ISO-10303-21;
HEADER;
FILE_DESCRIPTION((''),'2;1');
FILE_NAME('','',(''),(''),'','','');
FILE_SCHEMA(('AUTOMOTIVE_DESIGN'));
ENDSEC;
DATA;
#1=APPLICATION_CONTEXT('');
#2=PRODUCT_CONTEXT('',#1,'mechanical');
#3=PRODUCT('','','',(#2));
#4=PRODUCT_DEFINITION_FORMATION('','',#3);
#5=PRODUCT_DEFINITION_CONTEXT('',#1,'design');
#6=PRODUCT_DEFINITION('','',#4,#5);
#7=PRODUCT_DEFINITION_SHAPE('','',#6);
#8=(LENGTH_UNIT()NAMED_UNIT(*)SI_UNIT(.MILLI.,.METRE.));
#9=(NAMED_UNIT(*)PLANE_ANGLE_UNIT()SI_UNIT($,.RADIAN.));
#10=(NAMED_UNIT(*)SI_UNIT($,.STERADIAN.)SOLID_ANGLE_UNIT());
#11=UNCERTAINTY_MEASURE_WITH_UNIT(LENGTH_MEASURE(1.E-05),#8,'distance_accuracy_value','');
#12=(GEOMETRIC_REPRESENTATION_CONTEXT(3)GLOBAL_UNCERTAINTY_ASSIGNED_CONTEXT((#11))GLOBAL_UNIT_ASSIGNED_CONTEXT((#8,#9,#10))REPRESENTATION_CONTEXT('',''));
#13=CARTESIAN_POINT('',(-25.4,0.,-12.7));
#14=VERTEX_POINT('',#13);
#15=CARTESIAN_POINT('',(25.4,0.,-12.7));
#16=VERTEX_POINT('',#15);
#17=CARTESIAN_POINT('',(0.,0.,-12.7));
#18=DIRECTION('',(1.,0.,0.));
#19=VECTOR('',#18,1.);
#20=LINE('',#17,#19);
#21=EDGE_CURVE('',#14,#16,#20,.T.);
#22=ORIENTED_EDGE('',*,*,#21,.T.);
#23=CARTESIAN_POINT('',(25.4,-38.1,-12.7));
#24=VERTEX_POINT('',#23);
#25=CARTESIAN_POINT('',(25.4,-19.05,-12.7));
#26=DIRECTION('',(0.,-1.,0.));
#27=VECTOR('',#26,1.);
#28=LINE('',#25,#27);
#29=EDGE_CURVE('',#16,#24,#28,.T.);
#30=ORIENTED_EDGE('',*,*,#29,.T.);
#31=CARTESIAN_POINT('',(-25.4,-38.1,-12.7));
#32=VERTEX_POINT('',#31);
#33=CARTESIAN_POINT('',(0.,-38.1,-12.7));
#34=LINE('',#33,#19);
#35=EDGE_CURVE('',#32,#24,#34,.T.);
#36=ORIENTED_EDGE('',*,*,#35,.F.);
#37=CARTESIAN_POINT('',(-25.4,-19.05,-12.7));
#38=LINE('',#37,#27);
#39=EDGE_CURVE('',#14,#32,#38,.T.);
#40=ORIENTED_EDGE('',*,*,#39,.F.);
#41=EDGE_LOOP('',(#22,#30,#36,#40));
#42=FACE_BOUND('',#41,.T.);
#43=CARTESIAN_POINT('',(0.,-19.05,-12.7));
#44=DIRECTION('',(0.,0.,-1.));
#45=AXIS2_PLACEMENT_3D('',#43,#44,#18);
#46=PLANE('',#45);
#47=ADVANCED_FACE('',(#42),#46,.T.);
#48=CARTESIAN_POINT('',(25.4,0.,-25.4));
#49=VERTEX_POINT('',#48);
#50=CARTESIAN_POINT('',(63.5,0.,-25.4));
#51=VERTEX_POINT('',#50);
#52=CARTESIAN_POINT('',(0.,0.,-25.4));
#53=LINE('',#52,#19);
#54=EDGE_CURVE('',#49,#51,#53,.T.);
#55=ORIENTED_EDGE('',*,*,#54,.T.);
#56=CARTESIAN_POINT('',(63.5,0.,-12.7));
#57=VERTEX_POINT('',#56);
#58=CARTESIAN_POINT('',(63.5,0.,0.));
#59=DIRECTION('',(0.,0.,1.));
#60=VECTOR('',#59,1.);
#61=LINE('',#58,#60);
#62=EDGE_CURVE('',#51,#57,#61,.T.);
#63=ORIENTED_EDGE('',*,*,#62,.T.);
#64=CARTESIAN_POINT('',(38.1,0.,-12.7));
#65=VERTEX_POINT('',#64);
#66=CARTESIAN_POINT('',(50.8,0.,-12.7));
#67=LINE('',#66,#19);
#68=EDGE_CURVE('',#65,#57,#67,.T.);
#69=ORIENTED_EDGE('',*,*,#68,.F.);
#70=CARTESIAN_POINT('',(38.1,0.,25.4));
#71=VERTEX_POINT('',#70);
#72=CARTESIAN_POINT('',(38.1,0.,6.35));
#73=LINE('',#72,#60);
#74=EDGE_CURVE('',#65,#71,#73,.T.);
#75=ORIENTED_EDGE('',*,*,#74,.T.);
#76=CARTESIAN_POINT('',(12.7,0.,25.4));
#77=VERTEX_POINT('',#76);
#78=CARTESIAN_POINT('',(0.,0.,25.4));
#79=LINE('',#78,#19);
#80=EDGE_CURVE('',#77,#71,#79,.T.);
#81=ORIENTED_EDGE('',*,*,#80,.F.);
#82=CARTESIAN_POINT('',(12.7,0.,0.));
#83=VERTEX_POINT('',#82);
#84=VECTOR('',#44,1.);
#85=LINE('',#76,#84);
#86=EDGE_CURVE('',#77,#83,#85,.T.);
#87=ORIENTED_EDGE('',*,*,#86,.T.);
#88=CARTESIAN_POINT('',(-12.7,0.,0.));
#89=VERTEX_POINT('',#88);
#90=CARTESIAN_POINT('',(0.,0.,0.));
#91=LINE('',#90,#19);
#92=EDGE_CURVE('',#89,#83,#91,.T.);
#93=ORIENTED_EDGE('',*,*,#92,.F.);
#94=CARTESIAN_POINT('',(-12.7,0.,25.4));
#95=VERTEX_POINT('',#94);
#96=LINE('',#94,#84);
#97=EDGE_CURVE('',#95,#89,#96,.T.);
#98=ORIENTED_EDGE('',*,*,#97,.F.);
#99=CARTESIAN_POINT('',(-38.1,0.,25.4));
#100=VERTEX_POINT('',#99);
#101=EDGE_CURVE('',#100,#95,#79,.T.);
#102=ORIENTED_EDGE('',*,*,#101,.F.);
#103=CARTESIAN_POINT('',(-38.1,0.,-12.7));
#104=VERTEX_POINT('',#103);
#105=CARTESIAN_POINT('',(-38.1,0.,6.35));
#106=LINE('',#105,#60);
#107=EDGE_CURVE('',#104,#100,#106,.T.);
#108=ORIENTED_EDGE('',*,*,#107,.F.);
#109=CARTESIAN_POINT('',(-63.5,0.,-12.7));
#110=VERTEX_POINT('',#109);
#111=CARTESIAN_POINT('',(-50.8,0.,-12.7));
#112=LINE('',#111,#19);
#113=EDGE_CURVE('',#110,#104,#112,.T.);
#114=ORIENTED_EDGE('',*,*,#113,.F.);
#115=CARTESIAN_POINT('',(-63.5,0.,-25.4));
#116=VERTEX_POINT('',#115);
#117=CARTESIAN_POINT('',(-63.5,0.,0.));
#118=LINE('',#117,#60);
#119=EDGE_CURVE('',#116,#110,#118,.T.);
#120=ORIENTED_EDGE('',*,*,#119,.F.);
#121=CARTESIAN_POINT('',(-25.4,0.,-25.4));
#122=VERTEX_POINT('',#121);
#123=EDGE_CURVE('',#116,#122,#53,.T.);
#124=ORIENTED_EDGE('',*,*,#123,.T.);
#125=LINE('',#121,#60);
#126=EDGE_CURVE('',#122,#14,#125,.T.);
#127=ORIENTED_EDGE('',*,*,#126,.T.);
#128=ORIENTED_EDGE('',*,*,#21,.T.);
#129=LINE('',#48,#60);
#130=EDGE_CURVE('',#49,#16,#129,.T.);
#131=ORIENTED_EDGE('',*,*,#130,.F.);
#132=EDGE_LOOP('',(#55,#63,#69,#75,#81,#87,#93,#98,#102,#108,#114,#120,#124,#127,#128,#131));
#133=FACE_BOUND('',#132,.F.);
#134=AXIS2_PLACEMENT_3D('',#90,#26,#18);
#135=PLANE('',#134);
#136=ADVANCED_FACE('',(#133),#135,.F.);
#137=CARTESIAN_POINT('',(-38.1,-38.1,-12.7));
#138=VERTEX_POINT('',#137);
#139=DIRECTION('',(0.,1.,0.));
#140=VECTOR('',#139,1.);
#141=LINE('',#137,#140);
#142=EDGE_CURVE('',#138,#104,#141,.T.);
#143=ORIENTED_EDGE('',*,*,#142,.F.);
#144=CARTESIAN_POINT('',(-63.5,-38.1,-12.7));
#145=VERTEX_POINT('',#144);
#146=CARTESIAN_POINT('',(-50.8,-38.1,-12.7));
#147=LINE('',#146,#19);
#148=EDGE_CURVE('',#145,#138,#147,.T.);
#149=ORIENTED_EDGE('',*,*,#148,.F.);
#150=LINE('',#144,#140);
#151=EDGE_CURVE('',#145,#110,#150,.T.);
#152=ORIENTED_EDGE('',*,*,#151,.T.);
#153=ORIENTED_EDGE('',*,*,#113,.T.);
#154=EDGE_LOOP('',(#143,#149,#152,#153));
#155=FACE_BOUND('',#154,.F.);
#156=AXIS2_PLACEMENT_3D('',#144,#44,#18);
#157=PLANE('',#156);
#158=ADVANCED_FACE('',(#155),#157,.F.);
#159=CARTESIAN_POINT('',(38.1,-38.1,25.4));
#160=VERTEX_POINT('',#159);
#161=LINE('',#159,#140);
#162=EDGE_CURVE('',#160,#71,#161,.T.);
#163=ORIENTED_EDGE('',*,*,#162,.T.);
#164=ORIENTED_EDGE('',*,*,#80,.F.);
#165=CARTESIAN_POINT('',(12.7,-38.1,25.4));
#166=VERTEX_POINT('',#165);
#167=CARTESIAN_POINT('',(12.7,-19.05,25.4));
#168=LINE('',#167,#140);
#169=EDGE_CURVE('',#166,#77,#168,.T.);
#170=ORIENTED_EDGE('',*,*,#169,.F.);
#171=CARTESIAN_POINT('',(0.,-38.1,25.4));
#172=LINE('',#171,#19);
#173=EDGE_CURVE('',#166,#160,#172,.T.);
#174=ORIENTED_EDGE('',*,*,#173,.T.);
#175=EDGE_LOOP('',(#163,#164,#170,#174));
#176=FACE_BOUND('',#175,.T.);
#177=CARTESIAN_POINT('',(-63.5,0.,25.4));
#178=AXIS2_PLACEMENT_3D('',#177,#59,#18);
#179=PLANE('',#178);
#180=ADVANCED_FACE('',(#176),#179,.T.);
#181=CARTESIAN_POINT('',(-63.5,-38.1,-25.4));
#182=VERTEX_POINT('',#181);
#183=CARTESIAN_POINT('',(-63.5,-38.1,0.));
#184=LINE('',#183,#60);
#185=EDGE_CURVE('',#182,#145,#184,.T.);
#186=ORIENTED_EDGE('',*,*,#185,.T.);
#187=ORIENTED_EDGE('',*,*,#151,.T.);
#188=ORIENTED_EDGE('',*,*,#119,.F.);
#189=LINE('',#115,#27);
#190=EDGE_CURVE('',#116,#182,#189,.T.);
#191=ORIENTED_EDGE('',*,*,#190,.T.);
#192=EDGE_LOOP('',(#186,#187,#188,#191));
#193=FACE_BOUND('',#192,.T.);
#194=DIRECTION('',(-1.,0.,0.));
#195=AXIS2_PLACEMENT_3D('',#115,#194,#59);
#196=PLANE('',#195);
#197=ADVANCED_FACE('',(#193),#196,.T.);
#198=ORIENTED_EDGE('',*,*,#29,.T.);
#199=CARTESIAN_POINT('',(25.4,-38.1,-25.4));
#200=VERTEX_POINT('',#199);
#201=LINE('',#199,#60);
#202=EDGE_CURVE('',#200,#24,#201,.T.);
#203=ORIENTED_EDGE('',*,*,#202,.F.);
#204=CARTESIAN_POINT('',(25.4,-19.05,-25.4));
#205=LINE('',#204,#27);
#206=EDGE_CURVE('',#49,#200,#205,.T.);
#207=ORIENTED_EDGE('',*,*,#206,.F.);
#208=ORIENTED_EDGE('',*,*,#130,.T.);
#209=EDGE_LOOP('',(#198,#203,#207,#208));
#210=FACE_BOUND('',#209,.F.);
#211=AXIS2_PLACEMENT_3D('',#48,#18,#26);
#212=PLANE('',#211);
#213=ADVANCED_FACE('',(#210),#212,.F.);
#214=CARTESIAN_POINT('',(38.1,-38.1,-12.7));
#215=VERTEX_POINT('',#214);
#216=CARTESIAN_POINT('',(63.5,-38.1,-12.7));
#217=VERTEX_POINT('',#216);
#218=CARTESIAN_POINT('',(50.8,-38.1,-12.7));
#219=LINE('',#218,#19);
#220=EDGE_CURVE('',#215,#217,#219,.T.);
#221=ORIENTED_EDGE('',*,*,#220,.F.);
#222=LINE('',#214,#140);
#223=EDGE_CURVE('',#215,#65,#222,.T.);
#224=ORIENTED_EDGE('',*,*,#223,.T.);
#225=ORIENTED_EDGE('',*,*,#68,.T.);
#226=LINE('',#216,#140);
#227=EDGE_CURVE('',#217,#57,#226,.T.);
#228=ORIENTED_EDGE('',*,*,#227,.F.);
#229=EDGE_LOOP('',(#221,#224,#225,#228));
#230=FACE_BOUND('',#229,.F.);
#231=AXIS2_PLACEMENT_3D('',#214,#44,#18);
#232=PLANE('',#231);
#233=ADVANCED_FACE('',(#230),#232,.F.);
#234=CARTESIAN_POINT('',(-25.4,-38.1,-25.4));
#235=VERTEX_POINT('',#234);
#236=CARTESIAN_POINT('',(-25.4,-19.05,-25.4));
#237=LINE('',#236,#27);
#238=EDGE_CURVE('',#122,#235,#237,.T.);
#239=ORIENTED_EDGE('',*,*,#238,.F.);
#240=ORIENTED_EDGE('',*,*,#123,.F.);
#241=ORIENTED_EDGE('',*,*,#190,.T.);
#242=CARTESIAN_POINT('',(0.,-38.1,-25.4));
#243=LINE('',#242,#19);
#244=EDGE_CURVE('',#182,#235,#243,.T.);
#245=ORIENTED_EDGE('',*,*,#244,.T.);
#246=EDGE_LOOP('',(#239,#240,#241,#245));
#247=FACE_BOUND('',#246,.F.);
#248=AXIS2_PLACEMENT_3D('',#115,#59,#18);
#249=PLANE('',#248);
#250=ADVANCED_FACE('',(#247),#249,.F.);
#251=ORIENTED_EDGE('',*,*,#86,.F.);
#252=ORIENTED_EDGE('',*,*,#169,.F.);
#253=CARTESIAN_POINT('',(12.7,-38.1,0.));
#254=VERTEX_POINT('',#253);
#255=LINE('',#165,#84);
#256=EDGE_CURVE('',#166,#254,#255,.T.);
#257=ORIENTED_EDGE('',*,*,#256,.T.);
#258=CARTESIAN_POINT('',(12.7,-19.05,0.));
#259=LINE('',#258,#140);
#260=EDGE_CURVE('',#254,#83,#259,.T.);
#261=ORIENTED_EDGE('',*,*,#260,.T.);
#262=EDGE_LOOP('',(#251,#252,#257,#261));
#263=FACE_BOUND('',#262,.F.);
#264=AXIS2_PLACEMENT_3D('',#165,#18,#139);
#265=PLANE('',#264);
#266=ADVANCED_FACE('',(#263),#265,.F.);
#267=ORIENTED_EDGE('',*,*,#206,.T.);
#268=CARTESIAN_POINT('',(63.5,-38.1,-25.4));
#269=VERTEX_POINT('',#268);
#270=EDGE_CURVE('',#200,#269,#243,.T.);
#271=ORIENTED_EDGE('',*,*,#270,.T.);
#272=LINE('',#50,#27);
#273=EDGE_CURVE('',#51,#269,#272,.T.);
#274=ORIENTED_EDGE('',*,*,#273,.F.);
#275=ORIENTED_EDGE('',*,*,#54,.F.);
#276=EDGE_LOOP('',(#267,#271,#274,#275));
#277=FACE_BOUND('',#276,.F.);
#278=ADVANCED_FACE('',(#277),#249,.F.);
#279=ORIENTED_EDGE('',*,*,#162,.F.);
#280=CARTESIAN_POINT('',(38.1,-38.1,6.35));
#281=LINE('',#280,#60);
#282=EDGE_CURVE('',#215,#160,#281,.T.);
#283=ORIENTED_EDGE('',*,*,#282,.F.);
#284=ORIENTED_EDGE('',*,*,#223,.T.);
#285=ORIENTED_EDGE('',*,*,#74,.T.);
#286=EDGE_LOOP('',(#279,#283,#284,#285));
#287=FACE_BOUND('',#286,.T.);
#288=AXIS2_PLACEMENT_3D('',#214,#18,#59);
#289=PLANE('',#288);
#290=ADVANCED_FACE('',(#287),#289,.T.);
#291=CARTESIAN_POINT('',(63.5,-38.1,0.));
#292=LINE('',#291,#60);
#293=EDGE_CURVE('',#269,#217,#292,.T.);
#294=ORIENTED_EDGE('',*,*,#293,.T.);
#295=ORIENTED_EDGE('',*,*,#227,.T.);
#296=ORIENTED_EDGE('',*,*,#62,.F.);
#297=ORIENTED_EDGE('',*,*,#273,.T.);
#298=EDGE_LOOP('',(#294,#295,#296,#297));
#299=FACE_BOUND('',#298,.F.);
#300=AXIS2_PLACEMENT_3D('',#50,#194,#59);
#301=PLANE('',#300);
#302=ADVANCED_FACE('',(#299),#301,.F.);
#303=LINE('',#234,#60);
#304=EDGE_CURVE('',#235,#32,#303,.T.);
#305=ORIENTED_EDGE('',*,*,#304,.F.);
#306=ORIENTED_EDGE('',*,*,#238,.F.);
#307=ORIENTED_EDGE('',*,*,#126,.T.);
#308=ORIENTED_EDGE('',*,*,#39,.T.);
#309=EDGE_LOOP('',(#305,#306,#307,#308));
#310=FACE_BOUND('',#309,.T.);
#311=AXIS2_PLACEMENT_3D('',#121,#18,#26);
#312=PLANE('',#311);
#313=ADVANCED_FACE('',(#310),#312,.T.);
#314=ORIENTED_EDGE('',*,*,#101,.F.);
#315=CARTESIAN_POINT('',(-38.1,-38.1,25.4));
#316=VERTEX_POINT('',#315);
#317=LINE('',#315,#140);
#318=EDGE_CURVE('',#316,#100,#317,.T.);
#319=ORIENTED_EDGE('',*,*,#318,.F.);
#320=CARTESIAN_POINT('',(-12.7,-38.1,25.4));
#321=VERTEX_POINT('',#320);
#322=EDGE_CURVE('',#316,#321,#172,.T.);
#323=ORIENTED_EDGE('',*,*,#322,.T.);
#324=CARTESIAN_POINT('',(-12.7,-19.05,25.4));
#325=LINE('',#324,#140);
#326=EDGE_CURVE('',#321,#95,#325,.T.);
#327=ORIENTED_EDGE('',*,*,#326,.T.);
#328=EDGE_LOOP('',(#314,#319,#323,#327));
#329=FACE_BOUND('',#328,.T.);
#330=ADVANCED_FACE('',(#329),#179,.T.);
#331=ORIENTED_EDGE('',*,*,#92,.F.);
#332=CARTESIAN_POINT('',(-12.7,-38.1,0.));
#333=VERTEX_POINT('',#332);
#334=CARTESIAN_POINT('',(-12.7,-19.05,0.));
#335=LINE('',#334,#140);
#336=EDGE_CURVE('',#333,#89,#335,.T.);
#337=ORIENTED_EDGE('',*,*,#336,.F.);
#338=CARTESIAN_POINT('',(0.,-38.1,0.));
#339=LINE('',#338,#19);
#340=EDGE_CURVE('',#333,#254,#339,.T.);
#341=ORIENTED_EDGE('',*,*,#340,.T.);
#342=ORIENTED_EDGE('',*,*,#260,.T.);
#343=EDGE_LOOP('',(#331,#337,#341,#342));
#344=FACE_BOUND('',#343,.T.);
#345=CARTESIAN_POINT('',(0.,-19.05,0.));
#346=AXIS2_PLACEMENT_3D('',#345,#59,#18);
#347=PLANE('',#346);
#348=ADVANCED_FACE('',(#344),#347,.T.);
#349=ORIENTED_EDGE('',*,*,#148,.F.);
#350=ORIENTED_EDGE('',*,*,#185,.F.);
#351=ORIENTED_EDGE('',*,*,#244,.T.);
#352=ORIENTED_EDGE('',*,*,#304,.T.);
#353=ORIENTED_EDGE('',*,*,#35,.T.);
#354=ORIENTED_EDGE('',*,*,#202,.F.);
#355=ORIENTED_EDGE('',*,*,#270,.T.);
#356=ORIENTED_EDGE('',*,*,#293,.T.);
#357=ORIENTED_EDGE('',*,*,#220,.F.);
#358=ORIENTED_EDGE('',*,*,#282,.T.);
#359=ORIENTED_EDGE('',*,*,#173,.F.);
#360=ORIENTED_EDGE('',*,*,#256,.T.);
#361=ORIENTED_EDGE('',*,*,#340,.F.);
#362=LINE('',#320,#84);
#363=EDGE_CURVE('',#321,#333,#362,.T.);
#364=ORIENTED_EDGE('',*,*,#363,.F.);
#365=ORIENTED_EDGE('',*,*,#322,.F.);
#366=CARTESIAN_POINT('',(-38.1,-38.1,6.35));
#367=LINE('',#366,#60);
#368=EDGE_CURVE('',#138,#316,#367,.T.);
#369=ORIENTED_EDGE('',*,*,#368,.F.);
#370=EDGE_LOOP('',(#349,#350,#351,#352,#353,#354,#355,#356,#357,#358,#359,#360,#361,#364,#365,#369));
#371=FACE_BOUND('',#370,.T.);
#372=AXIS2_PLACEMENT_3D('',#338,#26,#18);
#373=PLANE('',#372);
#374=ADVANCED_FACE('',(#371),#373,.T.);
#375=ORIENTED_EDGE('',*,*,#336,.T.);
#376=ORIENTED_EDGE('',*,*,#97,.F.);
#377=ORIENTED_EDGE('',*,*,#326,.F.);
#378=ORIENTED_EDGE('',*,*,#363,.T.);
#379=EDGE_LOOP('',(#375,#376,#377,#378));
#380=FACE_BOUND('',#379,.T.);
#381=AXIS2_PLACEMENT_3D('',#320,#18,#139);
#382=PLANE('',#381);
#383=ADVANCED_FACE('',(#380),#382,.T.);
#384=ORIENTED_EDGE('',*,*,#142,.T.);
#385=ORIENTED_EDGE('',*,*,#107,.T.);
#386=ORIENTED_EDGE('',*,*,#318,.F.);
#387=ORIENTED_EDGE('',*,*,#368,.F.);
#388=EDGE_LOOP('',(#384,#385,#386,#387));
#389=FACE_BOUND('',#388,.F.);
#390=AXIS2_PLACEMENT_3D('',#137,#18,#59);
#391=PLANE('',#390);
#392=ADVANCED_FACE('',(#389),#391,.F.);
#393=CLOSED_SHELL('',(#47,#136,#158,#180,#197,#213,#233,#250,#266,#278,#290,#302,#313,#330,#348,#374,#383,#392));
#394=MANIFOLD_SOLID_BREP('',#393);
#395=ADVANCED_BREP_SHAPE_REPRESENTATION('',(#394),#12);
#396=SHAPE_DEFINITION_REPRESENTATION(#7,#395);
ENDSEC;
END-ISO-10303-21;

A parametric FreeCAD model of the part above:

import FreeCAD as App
import Part
import Sketcher
Q = App.Units.Quantity


def add_polygon(sketch, points):
    """Adds a closed chain of lines whose ends are joined by coincident constraints."""
    first, n = sketch.GeometryCount, len(points)
    for a, b in zip(points, points[1:] + points[:1]):
        sketch.addGeometry(Part.LineSegment(App.Vector(*a, 0), App.Vector(*b, 0)), False)
    for i in range(n):
        sketch.addConstraint(Sketcher.Constraint("Coincident", first + i, 2, first + (i + 1) % n, 1))

doc = App.newDocument("Part")
params = doc.addObject("Spreadsheet::Sheet", "Params")
for row, (alias, value) in enumerate([
    ("sketch1_width", "5 in"),
    ("sketch1_height", "2 in"),
    ("pad1_length", "1.5 in"),
    ("sketch2_width", "2 in"),
    ("sketch2_height", "1.5 in"),
    ("pocket1_length", "0.5 in"),
    ("sketch3_width", "1 in"),
    ("sketch3_height", "1.5 in"),
    ("pocket2_length", "1.5 in"),
    ("sketch4_width", "1 in"),
    ("sketch4_height", "1.5 in"),
    ("pocket3_length", "1.5 in"),
    ("sketch5_width", "1 in"),
    ("sketch5_height", "1.5 in"),
    ("pocket4_length", "1 in"),
], start=1):
    params.set(f"A{row}", alias)
    params.set(f"B{row}", "=" + value)
    params.setAlias(f"B{row}", alias)

body = doc.addObject("PartDesign::Body", "Body")

sketch1 = body.newObject("Sketcher::SketchObject", "Sketch")
sketch1.AttachmentSupport = (doc.getObject("XZ_Plane"), [""])
sketch1.MapMode = "FlatFace"
add_polygon(sketch1, [(-64, 25), (-64, -25), (64, -25), (64, 25)])
sketch1.addConstraint([
    Sketcher.Constraint("Vertical", 0),
    Sketcher.Constraint("Horizontal", 1),
    Sketcher.Constraint("Vertical", 2),
    Sketcher.Constraint("Horizontal", 3),
    Sketcher.Constraint("Symmetric", 0, 2, 2, 2, -1, 1),
    Sketcher.Constraint("DistanceX", 1, 1, 1, 2, Q("5 in")),
    Sketcher.Constraint("DistanceY", 0, 2, 0, 1, Q("2 in")),
])
sketch1.setExpression("Constraints[9]", "Params.sketch1_width")
sketch1.setExpression("Constraints[10]", "Params.sketch1_height")
pad1 = body.newObject("PartDesign::Pad", "Pad")
pad1.Profile = sketch1
pad1.setExpression("Length", "Params.pad1_length")

sketch2 = body.newObject("Sketcher::SketchObject", "Sketch001")
sketch2.AttachmentSupport = (doc.getObject("XY_Plane"), [""])
sketch2.MapMode = "FlatFace"
sketch2.AttachmentOffset = App.Placement(App.Vector(0, 0, -1 * 25.4), App.Rotation())
add_polygon(sketch2, [(-25, -38), (-25, 0), (25, 0), (25, -38)])
sketch2.addConstraint([
    Sketcher.Constraint("Vertical", 0),
    Sketcher.Constraint("Horizontal", 1),
    Sketcher.Constraint("Vertical", 2),
    Sketcher.Constraint("Horizontal", 3),
    Sketcher.Constraint("Symmetric", 0, 2, 1, 2, -1, 1),
    Sketcher.Constraint("DistanceX", 1, 1, 1, 2, Q("2 in")),
    Sketcher.Constraint("DistanceY", 0, 1, 0, 2, Q("1.5 in")),
])
sketch2.setExpression("Constraints[9]", "Params.sketch2_width")
sketch2.setExpression("Constraints[10]", "Params.sketch2_height")
pocket1 = body.newObject("PartDesign::Pocket", "Pocket")
pocket1.Profile = sketch2
pocket1.setExpression("Length", "Params.pocket1_length")
pocket1.Reversed = True

sketch3 = body.newObject("Sketcher::SketchObject", "Sketch002")
sketch3.AttachmentSupport = (doc.getObject("XZ_Plane"), [""])
sketch3.MapMode = "FlatFace"
sketch3.AttachmentOffset = App.Placement(App.Vector(0, 0, 1.5 * 25.4), App.Rotation())
add_polygon(sketch3, [(-64, 25), (-64, -13), (-38, -13), (-38, 25)])
sketch3.addConstraint([
    Sketcher.Constraint("Vertical", 0),
    Sketcher.Constraint("Horizontal", 1),
    Sketcher.Constraint("Vertical", 2),
    Sketcher.Constraint("Horizontal", 3),
    Sketcher.Constraint("DistanceX", 1, 1, 1, 2, Q("1 in")),
    Sketcher.Constraint("DistanceY", 0, 2, 0, 1, Q("1.5 in")),
    Sketcher.Constraint("DistanceY", -1, 1, 2, 2, Q("1 in")),
    Sketcher.Constraint("DistanceX", 0, 2, -1, 1, Q("2.5 in")),
])
sketch3.setExpression("Constraints[8]", "Params.sketch3_width")
sketch3.setExpression("Constraints[9]", "Params.sketch3_height")
pocket2 = body.newObject("PartDesign::Pocket", "Pocket001")
pocket2.Profile = sketch3
pocket2.setExpression("Length", "Params.pocket2_length")

sketch4 = body.newObject("Sketcher::SketchObject", "Sketch003")
sketch4.AttachmentSupport = (doc.getObject("XZ_Plane"), [""])
sketch4.MapMode = "FlatFace"
sketch4.AttachmentOffset = App.Placement(App.Vector(0, 0, 1.5 * 25.4), App.Rotation())
add_polygon(sketch4, [(38, 25), (38, -13), (64, -13), (64, 25)])
sketch4.addConstraint([
    Sketcher.Constraint("Vertical", 0),
    Sketcher.Constraint("Horizontal", 1),
    Sketcher.Constraint("Vertical", 2),
    Sketcher.Constraint("Horizontal", 3),
    Sketcher.Constraint("DistanceX", 1, 1, 1, 2, Q("1 in")),
    Sketcher.Constraint("DistanceY", 0, 2, 0, 1, Q("1.5 in")),
    Sketcher.Constraint("DistanceY", -1, 1, 2, 2, Q("1 in")),
    Sketcher.Constraint("DistanceX", -1, 1, 0, 2, Q("1.5 in")),
])
sketch4.setExpression("Constraints[8]", "Params.sketch4_width")
sketch4.setExpression("Constraints[9]", "Params.sketch4_height")
pocket3 = body.newObject("PartDesign::Pocket", "Pocket002")
pocket3.Profile = sketch4
pocket3.setExpression("Length", "Params.pocket3_length")

sketch5 = body.newObject("Sketcher::SketchObject", "Sketch004")
sketch5.AttachmentSupport = (doc.getObject("XY_Plane"), [""])
sketch5.MapMode = "FlatFace"
sketch5.AttachmentOffset = App.Placement(App.Vector(0, 0, 1 * 25.4), App.Rotation())
add_polygon(sketch5, [(-13, 0), (-13, -38), (13, -38), (13, 0)])
sketch5.addConstraint([
    Sketcher.Constraint("Vertical", 0),
    Sketcher.Constraint("Horizontal", 1),
    Sketcher.Constraint("Vertical", 2),
    Sketcher.Constraint("Horizontal", 3),
    Sketcher.Constraint("Symmetric", 2, 2, 3, 2, -1, 1),
    Sketcher.Constraint("DistanceX", 1, 1, 1, 2, Q("1 in")),
    Sketcher.Constraint("DistanceY", 0, 2, 0, 1, Q("1.5 in")),
])
sketch5.setExpression("Constraints[9]", "Params.sketch5_width")
sketch5.setExpression("Constraints[10]", "Params.sketch5_height")
pocket4 = body.newObject("PartDesign::Pocket", "Pocket003")
pocket4.Profile = sketch5
pocket4.setExpression("Length", "Params.pocket4_length")

doc.recompute()
